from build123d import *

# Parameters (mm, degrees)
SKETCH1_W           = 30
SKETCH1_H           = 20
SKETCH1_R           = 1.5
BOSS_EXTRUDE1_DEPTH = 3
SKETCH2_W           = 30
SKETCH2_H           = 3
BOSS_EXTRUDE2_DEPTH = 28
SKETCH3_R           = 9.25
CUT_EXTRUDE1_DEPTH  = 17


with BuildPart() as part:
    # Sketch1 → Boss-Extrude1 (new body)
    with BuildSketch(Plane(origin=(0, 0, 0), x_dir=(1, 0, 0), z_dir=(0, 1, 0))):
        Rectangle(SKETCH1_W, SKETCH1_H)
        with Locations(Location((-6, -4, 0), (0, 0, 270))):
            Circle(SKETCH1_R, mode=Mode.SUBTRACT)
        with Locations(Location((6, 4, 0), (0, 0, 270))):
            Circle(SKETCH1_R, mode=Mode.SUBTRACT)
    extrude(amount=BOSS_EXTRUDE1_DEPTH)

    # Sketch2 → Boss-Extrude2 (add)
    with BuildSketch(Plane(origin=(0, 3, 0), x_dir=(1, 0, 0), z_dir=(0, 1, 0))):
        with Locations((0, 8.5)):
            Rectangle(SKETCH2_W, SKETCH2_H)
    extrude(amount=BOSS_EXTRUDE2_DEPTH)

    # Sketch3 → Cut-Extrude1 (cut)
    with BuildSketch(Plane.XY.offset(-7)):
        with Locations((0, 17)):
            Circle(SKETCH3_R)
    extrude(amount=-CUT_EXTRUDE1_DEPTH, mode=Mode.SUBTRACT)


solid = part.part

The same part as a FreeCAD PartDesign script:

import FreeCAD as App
import Part
import Sketcher


def add_polygon(sketch, points):
    """Adds a closed chain of lines whose ends are joined by coincident constraints."""
    first, n = sketch.GeometryCount, len(points)
    for a, b in zip(points, points[1:] + points[:1]):
        sketch.addGeometry(Part.LineSegment(App.Vector(*a, 0), App.Vector(*b, 0)), False)
    for i in range(n):
        sketch.addConstraint(Sketcher.Constraint("Coincident", first + i, 2, first + (i + 1) % n, 1))

doc = App.newDocument("Part")
body = doc.addObject("PartDesign::Body", "Body")

# Sketch on XZ plane
sketch1 = body.newObject("Sketcher::SketchObject", "Sketch")
sketch1.AttachmentSupport = (doc.getObject("XZ_Plane"), [""])
sketch1.MapMode = "FlatFace"
add_polygon(sketch1, [(-15, -10), (-15, 10), (15, 10), (15, -10)])  # lines 0-3
sketch1.addGeometry(Part.Circle(App.Vector(-6, 4, 0), App.Vector(0, 0, 1), 1.5), False)  # 4
sketch1.addGeometry(Part.Circle(App.Vector(6, -4, 0), App.Vector(0, 0, 1), 1.5), False)  # 5
sketch1.addConstraint([
    Sketcher.Constraint("Vertical", 0),
    Sketcher.Constraint("Horizontal", 1),
    Sketcher.Constraint("Vertical", 2),
    Sketcher.Constraint("Horizontal", 3),
    Sketcher.Constraint("Equal", 4, 5),
    Sketcher.Constraint("Symmetric", 4, 3, 5, 3, -1, 1),
    Sketcher.Constraint("Symmetric", 0, 2, 2, 2, -1, 1),
    Sketcher.Constraint("Diameter", 4, 3.0),
    Sketcher.Constraint("DistanceX", 1, 1, 1, 2, 30.0),
    Sketcher.Constraint("DistanceY", 0, 1, 0, 2, 20.0),
    Sketcher.Constraint("DistanceX", 4, 3, -1, 1, 6.0),
    Sketcher.Constraint("DistanceY", -1, 1, 4, 3, 4.0),
])
pad1 = body.newObject("PartDesign::Pad", "Pad")
pad1.Profile = sketch1
pad1.Length = 3
pad1.Reversed = True

# Sketch on XZ plane
sketch2 = body.newObject("Sketcher::SketchObject", "Sketch001")
sketch2.AttachmentSupport = (doc.getObject("XZ_Plane"), [""])
sketch2.MapMode = "FlatFace"
sketch2.AttachmentOffset = App.Placement(App.Vector(0, 0, -3), App.Rotation())
add_polygon(sketch2, [(-15, -10), (-15, -7), (15, -7), (15, -10)])  # lines 0-3
sketch2.addConstraint([
    Sketcher.Constraint("Vertical", 0),
    Sketcher.Constraint("Horizontal", 1),
    Sketcher.Constraint("Vertical", 2),
    Sketcher.Constraint("Horizontal", 3),
    Sketcher.Constraint("DistanceX", 1, 1, 1, 2, 30.0),
    Sketcher.Constraint("DistanceY", 0, 1, 0, 2, 3.0),
    Sketcher.Constraint("DistanceX", 0, 2, -1, 1, 15.0),
    Sketcher.Constraint("DistanceY", 0, 2, -1, 1, 7.0),
])
pad2 = body.newObject("PartDesign::Pad", "Pad001")
pad2.Profile = sketch2
pad2.Length = 28
pad2.Reversed = True

# Sketch on XY plane
sketch3 = body.newObject("Sketcher::SketchObject", "Sketch002")
sketch3.AttachmentSupport = (doc.getObject("XY_Plane"), [""])
sketch3.MapMode = "FlatFace"
sketch3.AttachmentOffset = App.Placement(App.Vector(0, 0, -7), App.Rotation())
sketch3.addGeometry(Part.Circle(App.Vector(0, 17, 0), App.Vector(0, 0, 1), 9), False)
sketch3.addConstraint([
    Sketcher.Constraint("PointOnObject", 0, 3, -2),
    Sketcher.Constraint("Diameter", 0, 18.5),
    Sketcher.Constraint("DistanceY", -1, 1, 0, 3, 17.0),
])
pocket1 = body.newObject("PartDesign::Pocket", "Pocket")
pocket1.Profile = sketch3
pocket1.Length = 17

doc.recompute()
